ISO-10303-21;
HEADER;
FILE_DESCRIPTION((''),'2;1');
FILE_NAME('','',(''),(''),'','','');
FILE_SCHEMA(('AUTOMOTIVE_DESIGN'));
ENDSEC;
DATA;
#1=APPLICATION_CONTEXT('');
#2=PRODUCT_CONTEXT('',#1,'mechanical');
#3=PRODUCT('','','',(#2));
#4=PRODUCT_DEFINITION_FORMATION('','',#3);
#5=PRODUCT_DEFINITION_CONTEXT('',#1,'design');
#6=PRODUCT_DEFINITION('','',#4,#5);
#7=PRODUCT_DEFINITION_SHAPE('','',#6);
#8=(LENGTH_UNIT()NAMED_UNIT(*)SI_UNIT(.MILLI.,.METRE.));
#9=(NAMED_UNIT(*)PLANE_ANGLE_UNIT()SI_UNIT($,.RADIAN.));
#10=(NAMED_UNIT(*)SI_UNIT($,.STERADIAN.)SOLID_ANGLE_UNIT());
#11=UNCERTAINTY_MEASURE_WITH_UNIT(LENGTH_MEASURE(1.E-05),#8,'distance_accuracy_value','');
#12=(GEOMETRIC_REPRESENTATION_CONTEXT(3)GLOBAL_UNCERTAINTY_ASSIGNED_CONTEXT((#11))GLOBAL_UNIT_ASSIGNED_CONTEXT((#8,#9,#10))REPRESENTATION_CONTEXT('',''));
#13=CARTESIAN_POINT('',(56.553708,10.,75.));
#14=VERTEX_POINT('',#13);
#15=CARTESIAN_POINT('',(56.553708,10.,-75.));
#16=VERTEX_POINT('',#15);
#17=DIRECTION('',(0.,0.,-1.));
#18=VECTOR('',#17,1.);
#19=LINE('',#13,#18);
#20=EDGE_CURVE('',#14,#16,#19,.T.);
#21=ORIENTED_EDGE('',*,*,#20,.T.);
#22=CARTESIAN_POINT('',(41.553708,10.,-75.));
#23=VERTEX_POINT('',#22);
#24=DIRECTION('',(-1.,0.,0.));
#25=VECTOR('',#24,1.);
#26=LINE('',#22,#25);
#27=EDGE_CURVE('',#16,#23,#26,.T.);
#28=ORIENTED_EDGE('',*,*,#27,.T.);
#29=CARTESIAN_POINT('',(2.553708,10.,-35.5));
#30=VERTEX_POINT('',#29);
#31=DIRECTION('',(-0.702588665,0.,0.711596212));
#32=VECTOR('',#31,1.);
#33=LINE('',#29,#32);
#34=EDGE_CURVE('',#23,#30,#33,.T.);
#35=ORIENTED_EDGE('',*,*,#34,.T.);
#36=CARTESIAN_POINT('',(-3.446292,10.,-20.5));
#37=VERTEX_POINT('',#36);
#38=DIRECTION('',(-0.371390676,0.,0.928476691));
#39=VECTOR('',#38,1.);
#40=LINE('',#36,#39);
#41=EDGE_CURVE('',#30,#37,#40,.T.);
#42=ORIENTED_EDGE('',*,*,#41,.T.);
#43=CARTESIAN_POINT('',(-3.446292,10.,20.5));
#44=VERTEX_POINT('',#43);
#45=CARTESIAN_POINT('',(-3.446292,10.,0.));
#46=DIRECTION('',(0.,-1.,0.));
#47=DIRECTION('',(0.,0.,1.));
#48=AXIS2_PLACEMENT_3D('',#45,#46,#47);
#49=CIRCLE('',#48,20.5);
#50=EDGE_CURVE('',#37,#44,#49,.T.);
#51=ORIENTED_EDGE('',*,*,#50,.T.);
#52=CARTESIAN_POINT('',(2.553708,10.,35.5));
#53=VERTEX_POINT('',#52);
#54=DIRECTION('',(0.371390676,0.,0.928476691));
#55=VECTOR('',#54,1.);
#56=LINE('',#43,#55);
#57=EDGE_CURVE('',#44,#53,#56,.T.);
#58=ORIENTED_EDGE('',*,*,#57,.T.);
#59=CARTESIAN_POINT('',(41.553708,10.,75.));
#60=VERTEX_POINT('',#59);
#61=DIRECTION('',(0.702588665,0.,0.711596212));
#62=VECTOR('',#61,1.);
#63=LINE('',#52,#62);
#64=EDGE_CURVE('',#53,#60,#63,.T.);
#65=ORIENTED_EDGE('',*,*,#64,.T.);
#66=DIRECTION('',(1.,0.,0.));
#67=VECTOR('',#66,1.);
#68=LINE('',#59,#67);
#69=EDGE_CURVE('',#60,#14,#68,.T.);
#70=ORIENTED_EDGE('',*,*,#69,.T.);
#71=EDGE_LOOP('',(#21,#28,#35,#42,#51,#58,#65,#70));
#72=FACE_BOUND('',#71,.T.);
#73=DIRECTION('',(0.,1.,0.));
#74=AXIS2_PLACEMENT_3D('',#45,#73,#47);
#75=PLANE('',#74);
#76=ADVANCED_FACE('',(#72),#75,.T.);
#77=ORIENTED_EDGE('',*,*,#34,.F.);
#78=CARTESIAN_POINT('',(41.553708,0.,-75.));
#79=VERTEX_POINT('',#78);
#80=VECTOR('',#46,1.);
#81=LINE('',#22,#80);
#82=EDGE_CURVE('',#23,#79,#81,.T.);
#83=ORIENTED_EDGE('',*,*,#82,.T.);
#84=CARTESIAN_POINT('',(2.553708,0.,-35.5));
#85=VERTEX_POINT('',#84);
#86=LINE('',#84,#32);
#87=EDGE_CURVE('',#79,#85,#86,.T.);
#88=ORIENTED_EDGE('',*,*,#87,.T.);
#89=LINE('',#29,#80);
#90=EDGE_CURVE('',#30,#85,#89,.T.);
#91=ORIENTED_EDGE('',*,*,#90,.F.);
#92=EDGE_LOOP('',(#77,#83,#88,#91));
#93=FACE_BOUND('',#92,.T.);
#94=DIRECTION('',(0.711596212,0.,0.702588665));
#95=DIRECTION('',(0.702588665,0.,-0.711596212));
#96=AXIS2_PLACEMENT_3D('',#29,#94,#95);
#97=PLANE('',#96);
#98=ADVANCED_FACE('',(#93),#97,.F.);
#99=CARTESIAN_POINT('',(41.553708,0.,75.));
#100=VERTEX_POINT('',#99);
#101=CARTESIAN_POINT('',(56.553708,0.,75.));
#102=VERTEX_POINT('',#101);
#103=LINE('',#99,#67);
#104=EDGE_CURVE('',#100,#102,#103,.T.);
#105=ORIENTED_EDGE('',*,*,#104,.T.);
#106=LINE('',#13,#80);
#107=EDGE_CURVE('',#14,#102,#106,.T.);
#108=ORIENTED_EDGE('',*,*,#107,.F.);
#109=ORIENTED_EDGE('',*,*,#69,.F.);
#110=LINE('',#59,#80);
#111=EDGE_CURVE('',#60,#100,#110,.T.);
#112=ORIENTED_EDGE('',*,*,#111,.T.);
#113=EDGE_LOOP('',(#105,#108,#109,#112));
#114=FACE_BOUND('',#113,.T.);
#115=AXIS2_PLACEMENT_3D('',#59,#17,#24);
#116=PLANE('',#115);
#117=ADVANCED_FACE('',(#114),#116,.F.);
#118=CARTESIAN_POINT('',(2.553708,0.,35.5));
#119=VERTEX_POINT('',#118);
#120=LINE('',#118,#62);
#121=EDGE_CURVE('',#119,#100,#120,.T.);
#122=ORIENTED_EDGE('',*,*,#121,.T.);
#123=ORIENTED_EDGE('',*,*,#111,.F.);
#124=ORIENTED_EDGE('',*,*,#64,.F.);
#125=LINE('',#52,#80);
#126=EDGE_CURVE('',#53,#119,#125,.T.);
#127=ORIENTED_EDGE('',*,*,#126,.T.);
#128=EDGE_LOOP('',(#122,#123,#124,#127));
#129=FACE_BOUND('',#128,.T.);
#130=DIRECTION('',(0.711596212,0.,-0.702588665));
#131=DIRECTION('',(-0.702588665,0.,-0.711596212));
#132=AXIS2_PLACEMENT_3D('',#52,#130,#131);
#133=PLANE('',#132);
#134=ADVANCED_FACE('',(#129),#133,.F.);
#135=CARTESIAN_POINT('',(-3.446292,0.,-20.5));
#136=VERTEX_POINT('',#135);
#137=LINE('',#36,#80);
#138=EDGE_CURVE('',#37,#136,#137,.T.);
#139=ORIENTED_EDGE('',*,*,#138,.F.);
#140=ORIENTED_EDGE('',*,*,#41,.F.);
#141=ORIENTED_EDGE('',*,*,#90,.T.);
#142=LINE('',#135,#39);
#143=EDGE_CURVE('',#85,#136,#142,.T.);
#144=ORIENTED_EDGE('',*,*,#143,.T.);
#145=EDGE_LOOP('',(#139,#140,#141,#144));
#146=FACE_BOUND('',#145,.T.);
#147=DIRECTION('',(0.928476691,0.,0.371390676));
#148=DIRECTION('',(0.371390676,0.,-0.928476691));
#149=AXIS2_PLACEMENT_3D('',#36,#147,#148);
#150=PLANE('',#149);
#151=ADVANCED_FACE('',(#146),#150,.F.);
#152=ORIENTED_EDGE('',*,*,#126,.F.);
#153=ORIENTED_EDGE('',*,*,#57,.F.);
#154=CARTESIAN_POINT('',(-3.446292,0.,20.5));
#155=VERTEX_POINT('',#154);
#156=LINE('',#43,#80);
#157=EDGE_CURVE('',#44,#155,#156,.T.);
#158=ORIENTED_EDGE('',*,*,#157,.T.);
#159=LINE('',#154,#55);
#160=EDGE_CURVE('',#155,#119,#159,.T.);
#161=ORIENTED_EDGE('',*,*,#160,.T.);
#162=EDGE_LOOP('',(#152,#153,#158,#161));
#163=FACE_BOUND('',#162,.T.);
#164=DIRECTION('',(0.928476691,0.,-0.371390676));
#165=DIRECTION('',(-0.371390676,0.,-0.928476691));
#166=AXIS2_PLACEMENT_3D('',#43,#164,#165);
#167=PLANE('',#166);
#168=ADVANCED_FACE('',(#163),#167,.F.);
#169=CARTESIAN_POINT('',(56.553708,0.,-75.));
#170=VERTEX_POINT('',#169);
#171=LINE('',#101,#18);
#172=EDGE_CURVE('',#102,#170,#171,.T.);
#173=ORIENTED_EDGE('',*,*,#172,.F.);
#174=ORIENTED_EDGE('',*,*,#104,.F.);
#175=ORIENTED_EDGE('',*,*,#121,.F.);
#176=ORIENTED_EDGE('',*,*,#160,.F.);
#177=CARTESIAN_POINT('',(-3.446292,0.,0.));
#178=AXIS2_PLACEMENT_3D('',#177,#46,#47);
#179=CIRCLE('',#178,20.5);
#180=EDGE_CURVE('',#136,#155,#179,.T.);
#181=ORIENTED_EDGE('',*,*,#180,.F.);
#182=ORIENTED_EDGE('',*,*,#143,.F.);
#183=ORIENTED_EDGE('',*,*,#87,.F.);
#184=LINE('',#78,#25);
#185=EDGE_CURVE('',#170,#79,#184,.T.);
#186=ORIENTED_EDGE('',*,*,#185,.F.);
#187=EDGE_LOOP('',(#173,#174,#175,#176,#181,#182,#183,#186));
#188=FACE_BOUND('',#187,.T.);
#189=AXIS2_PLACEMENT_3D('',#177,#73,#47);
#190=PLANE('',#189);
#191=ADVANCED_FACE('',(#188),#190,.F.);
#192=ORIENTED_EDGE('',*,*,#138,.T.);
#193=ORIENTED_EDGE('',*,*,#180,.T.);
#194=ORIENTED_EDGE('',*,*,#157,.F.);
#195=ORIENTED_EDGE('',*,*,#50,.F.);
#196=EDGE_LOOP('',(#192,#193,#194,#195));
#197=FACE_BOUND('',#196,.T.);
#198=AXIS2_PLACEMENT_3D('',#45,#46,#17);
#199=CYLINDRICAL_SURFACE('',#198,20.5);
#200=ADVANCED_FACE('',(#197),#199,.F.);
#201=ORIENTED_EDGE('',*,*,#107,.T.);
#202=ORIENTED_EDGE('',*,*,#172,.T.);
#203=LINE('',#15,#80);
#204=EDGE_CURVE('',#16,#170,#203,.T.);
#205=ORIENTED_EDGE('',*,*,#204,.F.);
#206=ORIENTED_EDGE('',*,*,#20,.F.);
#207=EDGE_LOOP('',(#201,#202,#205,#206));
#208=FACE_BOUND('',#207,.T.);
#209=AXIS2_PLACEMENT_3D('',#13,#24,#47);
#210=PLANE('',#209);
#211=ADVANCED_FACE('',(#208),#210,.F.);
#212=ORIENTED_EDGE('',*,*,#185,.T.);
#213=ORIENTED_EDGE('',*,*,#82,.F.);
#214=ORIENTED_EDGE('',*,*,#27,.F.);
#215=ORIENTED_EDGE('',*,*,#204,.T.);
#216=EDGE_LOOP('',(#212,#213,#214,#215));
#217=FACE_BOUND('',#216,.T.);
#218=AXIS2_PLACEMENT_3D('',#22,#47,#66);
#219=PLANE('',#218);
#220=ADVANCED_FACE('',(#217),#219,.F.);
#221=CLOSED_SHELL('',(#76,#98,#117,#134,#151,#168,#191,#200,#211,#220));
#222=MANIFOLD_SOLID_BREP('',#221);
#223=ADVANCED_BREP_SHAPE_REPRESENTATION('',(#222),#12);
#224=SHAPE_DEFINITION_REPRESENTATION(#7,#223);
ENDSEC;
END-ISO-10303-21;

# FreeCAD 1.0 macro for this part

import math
import FreeCAD as App
import Part
import Sketcher
from FreeCAD import Vector
Q = App.Units.Quantity

doc = App.newDocument("Part")
body = doc.addObject("PartDesign::Body", "Body")

sketch1 = doc.addObject("Sketcher::SketchObject", "Sketch")
body.addObject(sketch1)
sketch1.AttachmentSupport = (doc.XZ_Plane, [""])
sketch1.MapMode = "FlatFace"
sketch1.addGeometry(Part.LineSegment(Vector(-3, 20, 0), Vector(3, 36, 0)), False)
sketch1.addGeometry(Part.LineSegment(Vector(3, 36, 0), Vector(42, 75, 0)), False)
sketch1.addGeometry(Part.LineSegment(Vector(42, 75, 0), Vector(57, 75, 0)), False)
sketch1.addGeometry(Part.LineSegment(Vector(57, 75, 0), Vector(57, -75, 0)), False)
sketch1.addGeometry(Part.LineSegment(Vector(57, -75, 0), Vector(42, -75, 0)), False)
sketch1.addGeometry(Part.LineSegment(Vector(42, -75, 0), Vector(3, -36, 0)), False)
sketch1.addGeometry(Part.LineSegment(Vector(3, -36, 0), Vector(-3, -20, 0)), False)
sketch1.addGeometry(Part.ArcOfCircle(Part.Circle(Vector(-3, 0, 0), Vector(0, 0, 1), 20), math.radians(-90), math.radians(90)), False)
sketch1.addConstraint(Sketcher.Constraint("Coincident", 0, 2, 1, 1))
sketch1.addConstraint(Sketcher.Constraint("Coincident", 1, 2, 2, 1))
sketch1.addConstraint(Sketcher.Constraint("Coincident", 2, 2, 3, 1))
sketch1.addConstraint(Sketcher.Constraint("Coincident", 3, 2, 4, 1))
sketch1.addConstraint(Sketcher.Constraint("Coincident", 4, 2, 5, 1))
sketch1.addConstraint(Sketcher.Constraint("Coincident", 5, 2, 6, 1))
sketch1.addConstraint(Sketcher.Constraint("Coincident", 6, 2, 7, 1))
sketch1.addConstraint(Sketcher.Constraint("Coincident", 7, 2, 0, 1))
sketch1.addConstraint(Sketcher.Constraint("Horizontal", 2))
sketch1.addConstraint(Sketcher.Constraint("Vertical", 3))
sketch1.addConstraint(Sketcher.Constraint("Horizontal", 4))
sketch1.addConstraint(Sketcher.Constraint("Symmetric", 1, 2, 4, 2, -1))
sketch1.addConstraint(Sketcher.Constraint("Symmetric", 0, 2, 5, 2, -1))
sketch1.addConstraint(Sketcher.Constraint("Symmetric", 6, 2, 7, 2, -1))
sketch1.addConstraint(Sketcher.Constraint("Vertical", 7, 3, 6, 2))
sketch1.addConstraint(Sketcher.Constraint("Radius", 7, Q("20.5 mm")))
sketch1.addConstraint(Sketcher.Constraint("DistanceX", 2, 1, 2, 2, Q("15 mm")))
sketch1.addConstraint(Sketcher.Constraint("DistanceY", 3, 2, 3, 1, Q("150 mm")))
sketch1.addConstraint(Sketcher.Constraint("DistanceX", 7, 3, 0, 2, Q("6 mm")))
sketch1.addConstraint(Sketcher.Constraint("DistanceX", 0, 2, 1, 2, Q("39 mm")))
sketch1.addConstraint(Sketcher.Constraint("DistanceY", 5, 2, 0, 2, Q("71 mm")))
sketch1.addConstraint(Sketcher.Constraint("DistanceX", 7, 3, -1, 1, Q("3.446292 mm")))
pad1 = doc.addObject("PartDesign::Pad", "Pad")
body.addObject(pad1)
pad1.Profile = sketch1
pad1.Length = 10
pad1.Reversed = True

doc.recompute()
